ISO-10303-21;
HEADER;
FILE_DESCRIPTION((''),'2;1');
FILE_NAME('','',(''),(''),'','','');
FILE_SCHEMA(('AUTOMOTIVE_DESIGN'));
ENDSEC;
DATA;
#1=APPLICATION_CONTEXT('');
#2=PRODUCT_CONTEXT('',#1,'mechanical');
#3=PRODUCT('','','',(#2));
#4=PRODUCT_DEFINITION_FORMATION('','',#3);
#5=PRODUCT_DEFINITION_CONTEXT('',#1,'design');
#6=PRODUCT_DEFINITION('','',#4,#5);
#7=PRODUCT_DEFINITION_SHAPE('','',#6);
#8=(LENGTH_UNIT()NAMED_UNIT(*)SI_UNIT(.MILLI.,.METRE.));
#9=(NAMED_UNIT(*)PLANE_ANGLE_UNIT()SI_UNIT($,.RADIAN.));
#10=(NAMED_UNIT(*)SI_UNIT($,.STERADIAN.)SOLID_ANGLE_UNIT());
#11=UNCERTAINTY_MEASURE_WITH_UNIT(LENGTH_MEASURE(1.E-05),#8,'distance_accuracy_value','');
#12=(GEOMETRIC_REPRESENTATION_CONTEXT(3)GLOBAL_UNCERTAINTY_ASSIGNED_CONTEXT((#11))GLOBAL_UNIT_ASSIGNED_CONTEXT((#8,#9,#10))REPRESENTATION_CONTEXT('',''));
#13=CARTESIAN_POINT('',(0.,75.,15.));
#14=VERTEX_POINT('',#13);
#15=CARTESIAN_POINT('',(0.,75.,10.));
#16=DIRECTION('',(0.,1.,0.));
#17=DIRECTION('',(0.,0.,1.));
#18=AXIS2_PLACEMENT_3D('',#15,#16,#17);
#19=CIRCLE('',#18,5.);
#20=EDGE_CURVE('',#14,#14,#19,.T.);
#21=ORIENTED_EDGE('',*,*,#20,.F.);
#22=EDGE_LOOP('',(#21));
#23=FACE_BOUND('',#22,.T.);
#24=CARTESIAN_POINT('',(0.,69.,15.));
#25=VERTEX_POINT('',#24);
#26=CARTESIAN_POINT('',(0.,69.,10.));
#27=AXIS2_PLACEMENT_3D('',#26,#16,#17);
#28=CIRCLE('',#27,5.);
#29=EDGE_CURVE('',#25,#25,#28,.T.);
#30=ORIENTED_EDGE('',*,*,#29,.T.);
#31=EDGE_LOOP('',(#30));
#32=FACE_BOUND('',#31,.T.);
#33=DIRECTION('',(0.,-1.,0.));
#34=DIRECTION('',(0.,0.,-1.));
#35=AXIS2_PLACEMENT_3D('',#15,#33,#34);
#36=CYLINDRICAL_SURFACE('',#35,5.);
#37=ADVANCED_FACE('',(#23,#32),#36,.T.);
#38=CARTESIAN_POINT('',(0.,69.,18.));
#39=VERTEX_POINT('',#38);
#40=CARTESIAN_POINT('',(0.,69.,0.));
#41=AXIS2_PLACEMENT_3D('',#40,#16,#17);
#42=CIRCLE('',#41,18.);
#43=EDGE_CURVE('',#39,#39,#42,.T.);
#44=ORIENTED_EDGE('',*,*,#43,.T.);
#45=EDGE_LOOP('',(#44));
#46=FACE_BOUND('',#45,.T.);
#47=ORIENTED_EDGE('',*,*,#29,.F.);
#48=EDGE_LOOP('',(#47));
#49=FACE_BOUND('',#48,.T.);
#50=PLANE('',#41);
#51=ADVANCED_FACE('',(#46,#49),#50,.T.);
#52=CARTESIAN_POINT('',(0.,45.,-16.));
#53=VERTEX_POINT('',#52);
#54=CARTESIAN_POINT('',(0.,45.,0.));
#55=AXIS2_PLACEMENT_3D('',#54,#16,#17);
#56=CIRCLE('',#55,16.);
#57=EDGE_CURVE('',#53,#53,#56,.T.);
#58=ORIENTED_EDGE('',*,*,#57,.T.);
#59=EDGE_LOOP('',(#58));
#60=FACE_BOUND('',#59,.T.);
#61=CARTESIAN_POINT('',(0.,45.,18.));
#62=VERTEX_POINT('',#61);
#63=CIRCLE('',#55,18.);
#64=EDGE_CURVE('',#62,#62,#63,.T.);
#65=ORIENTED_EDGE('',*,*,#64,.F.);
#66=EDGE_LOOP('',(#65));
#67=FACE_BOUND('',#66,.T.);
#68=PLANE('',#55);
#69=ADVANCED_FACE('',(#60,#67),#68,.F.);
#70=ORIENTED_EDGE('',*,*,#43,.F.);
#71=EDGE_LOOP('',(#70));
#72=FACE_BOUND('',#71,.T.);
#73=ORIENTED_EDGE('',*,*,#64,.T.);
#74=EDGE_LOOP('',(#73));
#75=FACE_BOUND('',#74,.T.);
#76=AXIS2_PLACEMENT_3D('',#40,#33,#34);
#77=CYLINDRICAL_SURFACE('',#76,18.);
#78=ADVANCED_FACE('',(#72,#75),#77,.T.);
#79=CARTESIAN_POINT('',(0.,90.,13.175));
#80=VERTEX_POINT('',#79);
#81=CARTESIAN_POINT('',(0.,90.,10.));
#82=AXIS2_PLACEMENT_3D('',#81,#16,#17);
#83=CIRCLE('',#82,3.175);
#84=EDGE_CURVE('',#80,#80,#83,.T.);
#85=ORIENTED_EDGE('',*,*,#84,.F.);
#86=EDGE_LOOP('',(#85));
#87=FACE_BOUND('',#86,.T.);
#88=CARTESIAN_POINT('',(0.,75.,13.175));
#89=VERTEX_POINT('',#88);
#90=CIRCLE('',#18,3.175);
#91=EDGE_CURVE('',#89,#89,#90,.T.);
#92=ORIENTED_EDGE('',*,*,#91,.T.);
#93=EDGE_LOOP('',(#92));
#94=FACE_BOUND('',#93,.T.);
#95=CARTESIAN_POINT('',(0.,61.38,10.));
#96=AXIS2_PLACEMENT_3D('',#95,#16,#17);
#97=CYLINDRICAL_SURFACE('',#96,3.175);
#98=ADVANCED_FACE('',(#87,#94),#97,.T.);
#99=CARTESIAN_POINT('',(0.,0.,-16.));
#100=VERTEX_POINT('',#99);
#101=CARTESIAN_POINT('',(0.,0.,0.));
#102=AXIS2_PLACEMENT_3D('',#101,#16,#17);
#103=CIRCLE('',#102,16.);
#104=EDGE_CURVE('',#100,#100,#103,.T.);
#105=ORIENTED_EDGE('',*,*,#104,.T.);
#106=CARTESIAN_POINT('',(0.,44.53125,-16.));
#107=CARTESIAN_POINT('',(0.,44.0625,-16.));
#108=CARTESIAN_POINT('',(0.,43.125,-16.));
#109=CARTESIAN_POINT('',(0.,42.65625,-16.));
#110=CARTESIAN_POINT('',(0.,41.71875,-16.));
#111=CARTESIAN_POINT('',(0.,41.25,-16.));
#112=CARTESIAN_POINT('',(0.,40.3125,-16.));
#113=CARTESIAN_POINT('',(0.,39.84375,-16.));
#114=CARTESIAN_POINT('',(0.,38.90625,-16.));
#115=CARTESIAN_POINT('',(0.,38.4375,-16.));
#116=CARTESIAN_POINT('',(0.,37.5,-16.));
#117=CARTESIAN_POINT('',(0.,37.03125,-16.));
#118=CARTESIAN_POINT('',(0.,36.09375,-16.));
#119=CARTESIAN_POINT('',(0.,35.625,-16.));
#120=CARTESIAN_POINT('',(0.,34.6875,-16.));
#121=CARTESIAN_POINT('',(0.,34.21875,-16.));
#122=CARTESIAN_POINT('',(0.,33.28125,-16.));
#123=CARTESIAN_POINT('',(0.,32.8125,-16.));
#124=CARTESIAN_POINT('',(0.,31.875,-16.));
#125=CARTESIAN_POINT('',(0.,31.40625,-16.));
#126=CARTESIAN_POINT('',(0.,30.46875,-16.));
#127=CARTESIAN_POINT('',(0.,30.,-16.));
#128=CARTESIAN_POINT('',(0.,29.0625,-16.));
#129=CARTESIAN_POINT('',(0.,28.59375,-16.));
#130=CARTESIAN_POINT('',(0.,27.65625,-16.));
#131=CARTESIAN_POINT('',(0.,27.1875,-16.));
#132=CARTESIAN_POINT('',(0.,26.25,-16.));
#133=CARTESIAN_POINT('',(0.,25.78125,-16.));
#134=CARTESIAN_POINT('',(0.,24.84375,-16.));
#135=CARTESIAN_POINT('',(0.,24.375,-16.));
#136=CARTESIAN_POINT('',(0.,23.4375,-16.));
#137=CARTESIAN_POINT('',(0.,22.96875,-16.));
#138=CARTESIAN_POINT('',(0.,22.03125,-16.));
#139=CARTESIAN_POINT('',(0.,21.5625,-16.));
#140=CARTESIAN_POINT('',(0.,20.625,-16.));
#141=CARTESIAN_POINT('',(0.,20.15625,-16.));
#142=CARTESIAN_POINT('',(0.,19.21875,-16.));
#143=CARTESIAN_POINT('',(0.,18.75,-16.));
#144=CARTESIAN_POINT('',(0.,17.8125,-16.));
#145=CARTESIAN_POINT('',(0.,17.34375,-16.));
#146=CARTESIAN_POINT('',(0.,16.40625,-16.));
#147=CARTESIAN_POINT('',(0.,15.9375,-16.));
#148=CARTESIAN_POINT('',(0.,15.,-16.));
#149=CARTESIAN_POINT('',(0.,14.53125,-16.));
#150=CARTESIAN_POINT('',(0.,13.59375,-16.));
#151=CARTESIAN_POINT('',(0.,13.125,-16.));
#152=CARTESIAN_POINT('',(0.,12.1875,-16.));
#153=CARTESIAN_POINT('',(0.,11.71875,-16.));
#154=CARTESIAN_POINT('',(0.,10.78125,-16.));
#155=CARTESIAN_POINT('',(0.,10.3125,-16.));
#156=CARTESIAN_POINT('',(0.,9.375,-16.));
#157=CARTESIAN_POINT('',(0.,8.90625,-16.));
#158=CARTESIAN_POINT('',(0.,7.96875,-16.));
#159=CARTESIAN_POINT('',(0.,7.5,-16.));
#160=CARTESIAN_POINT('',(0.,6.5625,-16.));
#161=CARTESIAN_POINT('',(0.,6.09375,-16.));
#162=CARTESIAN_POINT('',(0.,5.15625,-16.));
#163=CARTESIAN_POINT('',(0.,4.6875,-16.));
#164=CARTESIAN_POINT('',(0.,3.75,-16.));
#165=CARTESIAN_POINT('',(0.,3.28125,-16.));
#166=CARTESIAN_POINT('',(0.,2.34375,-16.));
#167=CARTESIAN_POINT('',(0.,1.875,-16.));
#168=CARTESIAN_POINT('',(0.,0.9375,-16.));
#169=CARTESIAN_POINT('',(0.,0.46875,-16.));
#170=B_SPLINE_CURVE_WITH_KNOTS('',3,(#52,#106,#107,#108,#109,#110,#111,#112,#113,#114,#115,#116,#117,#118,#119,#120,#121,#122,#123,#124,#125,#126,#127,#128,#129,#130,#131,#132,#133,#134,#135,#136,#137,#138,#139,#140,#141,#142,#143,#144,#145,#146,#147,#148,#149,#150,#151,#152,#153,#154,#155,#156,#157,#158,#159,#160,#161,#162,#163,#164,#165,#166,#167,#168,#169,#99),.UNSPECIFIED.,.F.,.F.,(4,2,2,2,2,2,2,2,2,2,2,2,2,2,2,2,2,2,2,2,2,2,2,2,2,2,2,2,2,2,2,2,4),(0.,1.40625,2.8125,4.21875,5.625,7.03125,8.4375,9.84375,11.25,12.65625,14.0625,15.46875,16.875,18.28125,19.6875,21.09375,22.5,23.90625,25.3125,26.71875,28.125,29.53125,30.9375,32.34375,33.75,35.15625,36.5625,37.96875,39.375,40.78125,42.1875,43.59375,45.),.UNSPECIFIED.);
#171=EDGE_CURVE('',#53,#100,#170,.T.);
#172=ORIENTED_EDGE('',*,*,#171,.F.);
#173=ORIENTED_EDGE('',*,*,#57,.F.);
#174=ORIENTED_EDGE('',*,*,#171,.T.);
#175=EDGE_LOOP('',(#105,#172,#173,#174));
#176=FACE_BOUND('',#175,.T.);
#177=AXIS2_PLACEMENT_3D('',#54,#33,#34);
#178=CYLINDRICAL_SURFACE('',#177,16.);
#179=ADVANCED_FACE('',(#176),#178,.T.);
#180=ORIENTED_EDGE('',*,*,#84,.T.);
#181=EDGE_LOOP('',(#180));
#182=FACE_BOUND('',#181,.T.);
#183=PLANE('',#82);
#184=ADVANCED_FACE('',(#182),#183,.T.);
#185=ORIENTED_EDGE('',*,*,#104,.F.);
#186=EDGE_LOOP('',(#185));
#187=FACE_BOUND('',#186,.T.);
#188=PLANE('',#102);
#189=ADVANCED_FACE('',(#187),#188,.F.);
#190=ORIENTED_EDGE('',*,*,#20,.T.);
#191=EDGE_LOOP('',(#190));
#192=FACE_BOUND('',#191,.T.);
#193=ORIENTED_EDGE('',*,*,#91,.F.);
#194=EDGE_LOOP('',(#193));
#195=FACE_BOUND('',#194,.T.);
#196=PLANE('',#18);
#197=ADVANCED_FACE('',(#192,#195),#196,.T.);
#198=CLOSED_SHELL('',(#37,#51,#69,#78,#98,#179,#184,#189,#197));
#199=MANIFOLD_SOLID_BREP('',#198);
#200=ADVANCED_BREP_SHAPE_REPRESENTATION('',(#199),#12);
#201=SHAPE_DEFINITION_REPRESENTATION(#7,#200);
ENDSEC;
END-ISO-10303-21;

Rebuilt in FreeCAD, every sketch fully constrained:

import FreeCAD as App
import Part
import Sketcher

V = App.Vector
Q = App.Units.Quantity

doc = App.newDocument("Part")
params = doc.addObject("Spreadsheet::Sheet", "Params")
for row, (alias, value) in enumerate([
    ("sketch1_diameter", "32 mm"),
    ("pad1_length", "45 mm"),
    ("sketch2_diameter", "36 mm"),
    ("pad2_length", "24 mm"),
    ("sketch3_diameter", "10 mm"),
    ("sketch3_diameter2", "6.35 mm"),
    ("pad3_length", "6 mm"),
    ("sketch4_diameter", "6.35 mm"),
    ("pad4_length", "15 mm"),
    ("pad4_length2", "13.62 mm"),
], start=1):
    params.set(f"A{row}", alias)
    params.set(f"B{row}", "=" + value)
    params.setAlias(f"B{row}", alias)

body = doc.addObject("PartDesign::Body", "Body")

# Sketch on XZ plane
sketch1 = body.newObject("Sketcher::SketchObject", "Sketch")
sketch1.AttachmentSupport = (doc.getObject("XZ_Plane"), [""])
sketch1.MapMode = "FlatFace"
sketch1.addGeometry(Part.Circle(V(0, 0, 0), V(0, 0, 1), 16), False)
sketch1.addConstraint([
    Sketcher.Constraint("Coincident", 0, 3, -1, 1),
    Sketcher.Constraint("Diameter", 0, Q("32 mm")),
])
sketch1.setExpression("Constraints[1]", "Params.sketch1_diameter")
pad1 = body.newObject("PartDesign::Pad", "Pad")
pad1.Profile = sketch1
pad1.setExpression("Length", "Params.pad1_length")
pad1.Reversed = True

# Sketch on XZ plane
sketch2 = body.newObject("Sketcher::SketchObject", "Sketch001")
sketch2.AttachmentSupport = (doc.getObject("XZ_Plane"), [""])
sketch2.MapMode = "FlatFace"
sketch2.AttachmentOffset = App.Placement(V(0, 0, -45), App.Rotation())
sketch2.addGeometry(Part.Circle(V(0, 0, 0), V(0, 0, 1), 18), False)
sketch2.addConstraint([
    Sketcher.Constraint("Coincident", 0, 3, -1, 1),
    Sketcher.Constraint("Diameter", 0, Q("36 mm")),
])
sketch2.setExpression("Constraints[1]", "Params.sketch2_diameter")
pad2 = body.newObject("PartDesign::Pad", "Pad001")
pad2.Profile = sketch2
pad2.setExpression("Length", "Params.pad2_length")
pad2.Reversed = True

# Sketch on XZ plane
sketch3 = body.newObject("Sketcher::SketchObject", "Sketch002")
sketch3.AttachmentSupport = (doc.getObject("XZ_Plane"), [""])
sketch3.MapMode = "FlatFace"
sketch3.AttachmentOffset = App.Placement(V(0, 0, -69), App.Rotation())
sketch3.addGeometry([
    Part.Circle(V(0, 10, 0), V(0, 0, 1), 5),
    Part.Circle(V(0, 10, 0), V(0, 0, 1), 3.175),
], False)
sketch3.addConstraint([
    Sketcher.Constraint("Coincident", 1, 3, 0, 3),
    Sketcher.Constraint("PointOnObject", 0, 3, -2),
    Sketcher.Constraint("Diameter", 0, Q("10 mm")),
    Sketcher.Constraint("Diameter", 1, Q("6.35 mm")),
    Sketcher.Constraint("DistanceY", -1, 1, 0, 3, Q("10 mm")),
])
sketch3.setExpression("Constraints[2]", "Params.sketch3_diameter")
sketch3.setExpression("Constraints[3]", "Params.sketch3_diameter2")
pad3 = body.newObject("PartDesign::Pad", "Pad002")
pad3.Profile = sketch3
pad3.setExpression("Length", "Params.pad3_length")
pad3.Reversed = True

# Sketch on XZ plane
sketch4 = body.newObject("Sketcher::SketchObject", "Sketch003")
sketch4.AttachmentSupport = (doc.getObject("XZ_Plane"), [""])
sketch4.MapMode = "FlatFace"
sketch4.AttachmentOffset = App.Placement(V(0, 0, -75), App.Rotation())
sketch4.addGeometry(Part.Circle(V(0, 10, 0), V(0, 0, 1), 3.175), False)
sketch4.addConstraint([
    Sketcher.Constraint("PointOnObject", 0, 3, -2),
    Sketcher.Constraint("Diameter", 0, Q("6.35 mm")),
    Sketcher.Constraint("DistanceY", -1, 1, 0, 3, Q("10 mm")),
])
sketch4.setExpression("Constraints[1]", "Params.sketch4_diameter")
pad4 = body.newObject("PartDesign::Pad", "Pad003")
pad4.Profile = sketch4
pad4.Type = "TwoLengths"
pad4.setExpression("Length", "Params.pad4_length")
pad4.setExpression("Length2", "Params.pad4_length2")
pad4.Reversed = True

doc.recompute()
